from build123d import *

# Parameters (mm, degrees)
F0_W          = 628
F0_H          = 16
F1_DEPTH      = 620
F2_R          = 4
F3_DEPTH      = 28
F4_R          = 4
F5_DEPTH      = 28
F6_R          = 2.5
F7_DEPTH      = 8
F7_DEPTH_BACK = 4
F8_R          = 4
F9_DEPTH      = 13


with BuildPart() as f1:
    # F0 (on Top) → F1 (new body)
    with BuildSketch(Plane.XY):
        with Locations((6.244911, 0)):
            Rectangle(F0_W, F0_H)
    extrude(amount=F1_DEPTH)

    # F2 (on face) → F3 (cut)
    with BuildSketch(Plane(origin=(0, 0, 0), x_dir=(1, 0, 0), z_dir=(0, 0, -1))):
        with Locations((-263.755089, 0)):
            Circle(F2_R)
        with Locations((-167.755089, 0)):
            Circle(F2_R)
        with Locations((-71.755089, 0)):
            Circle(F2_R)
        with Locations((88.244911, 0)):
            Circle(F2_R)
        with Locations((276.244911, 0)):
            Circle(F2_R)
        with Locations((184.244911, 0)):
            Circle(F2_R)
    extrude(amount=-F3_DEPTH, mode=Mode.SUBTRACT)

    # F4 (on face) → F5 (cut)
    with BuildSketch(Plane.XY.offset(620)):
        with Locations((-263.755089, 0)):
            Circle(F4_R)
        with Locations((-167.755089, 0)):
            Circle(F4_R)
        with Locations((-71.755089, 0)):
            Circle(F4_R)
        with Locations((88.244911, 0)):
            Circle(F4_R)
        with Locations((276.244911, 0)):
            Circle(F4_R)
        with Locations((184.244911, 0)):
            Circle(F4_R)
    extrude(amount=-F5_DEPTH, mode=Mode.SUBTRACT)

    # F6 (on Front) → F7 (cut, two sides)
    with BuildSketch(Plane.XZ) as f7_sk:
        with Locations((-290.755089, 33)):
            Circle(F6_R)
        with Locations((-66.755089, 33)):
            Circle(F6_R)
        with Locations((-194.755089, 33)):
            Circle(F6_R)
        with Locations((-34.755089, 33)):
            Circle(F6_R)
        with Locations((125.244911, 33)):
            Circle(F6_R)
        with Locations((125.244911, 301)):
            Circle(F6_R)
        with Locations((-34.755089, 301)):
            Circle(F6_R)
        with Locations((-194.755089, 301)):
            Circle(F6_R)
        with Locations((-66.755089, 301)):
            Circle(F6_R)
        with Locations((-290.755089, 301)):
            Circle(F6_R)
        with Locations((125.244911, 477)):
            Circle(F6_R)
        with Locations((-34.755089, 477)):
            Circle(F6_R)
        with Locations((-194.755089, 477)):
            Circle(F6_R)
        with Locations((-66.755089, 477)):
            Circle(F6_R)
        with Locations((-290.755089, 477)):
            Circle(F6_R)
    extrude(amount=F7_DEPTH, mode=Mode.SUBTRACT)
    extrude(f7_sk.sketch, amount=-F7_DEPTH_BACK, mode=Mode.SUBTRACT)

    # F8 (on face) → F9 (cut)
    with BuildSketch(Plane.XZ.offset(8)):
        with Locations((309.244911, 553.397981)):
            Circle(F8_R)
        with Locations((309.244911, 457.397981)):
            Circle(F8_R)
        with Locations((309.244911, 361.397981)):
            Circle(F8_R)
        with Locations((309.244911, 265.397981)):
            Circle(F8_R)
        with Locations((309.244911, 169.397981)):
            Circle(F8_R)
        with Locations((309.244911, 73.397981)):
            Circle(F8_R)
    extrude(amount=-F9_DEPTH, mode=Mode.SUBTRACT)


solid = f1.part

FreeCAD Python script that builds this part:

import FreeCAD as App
import Part
import Sketcher

V = App.Vector


def add_polygon(sketch, points):
    """Adds a closed chain of lines whose ends are joined by coincident constraints."""
    first, n = sketch.GeometryCount, len(points)
    for a, b in zip(points, points[1:] + points[:1]):
        sketch.addGeometry(Part.LineSegment(App.Vector(*a, 0), App.Vector(*b, 0)), False)
    for i in range(n):
        sketch.addConstraint(Sketcher.Constraint("Coincident", first + i, 2, first + (i + 1) % n, 1))

doc = App.newDocument("Part")
params = doc.addObject("Spreadsheet::Sheet", "Params")
for row, (alias, value) in enumerate([
    ("sketch1_width", "628 mm"),
    ("sketch1_height", "16 mm"),
    ("pad1_length", "620 mm"),
    ("sketch2_diameter", "8 mm"),
    ("pocket1_length", "28 mm"),
    ("sketch3_diameter", "8 mm"),
    ("pocket2_length", "28 mm"),
    ("sketch4_diameter", "5 mm"),
    ("pocket3_length", "8 mm"),
    ("pocket3_length2", "4 mm"),
    ("sketch5_diameter", "8 mm"),
    ("pocket4_length", "13 mm"),
], start=1):
    params.set(f"A{row}", alias)
    params.set(f"B{row}", "=" + value)
    params.setAlias(f"B{row}", alias)

body = doc.addObject("PartDesign::Body", "Body")

# Sketch on XY plane
sketch1 = body.newObject("Sketcher::SketchObject", "Sketch")
sketch1.AttachmentSupport = (doc.getObject("XY_Plane"), [""])
sketch1.MapMode = "FlatFace"
add_polygon(sketch1, [(-308, 8), (-308, -8), (320, -8), (320, 8)])  # lines 0-3
sketch1.addConstraint([
    Sketcher.Constraint("Vertical", 0),
    Sketcher.Constraint("Horizontal", 1),
    Sketcher.Constraint("Vertical", 2),
    Sketcher.Constraint("Horizontal", 3),
    Sketcher.Constraint("DistanceX", 1, 1, 1, 2, 628.0),
    Sketcher.Constraint("DistanceY", 0, 2, 0, 1, 16.0),
    Sketcher.Constraint("DistanceY", 0, 2, -1, 1, 8.0),
    Sketcher.Constraint("DistanceX", 0, 2, -1, 1, 307.755089),
])
sketch1.setExpression("Constraints[8]", "Params.sketch1_width")
sketch1.setExpression("Constraints[9]", "Params.sketch1_height")
pad1 = body.newObject("PartDesign::Pad", "Pad")
pad1.Profile = sketch1
pad1.setExpression("Length", "Params.pad1_length")

# Sketch on XY plane
sketch2 = body.newObject("Sketcher::SketchObject", "Sketch001")
sketch2.AttachmentSupport = (doc.getObject("XY_Plane"), [""])
sketch2.MapMode = "FlatFace"
sketch2.addGeometry([
    Part.Circle(V(-263.8, 0, 0), V(0, 0, 1), 4),  # 0
    Part.Circle(V(-167.8, 0, 0), V(0, 0, 1), 4),  # 1
    Part.Circle(V(-71.8, 0, 0), V(0, 0, 1), 4),  # 2
    Part.Circle(V(88.2, 0, 0), V(0, 0, 1), 4),  # 3
    Part.Circle(V(276.2, 0, 0), V(0, 0, 1), 4),  # 4
    Part.Circle(V(184.2, 0, 0), V(0, 0, 1), 4),  # 5
], False)
sketch2.addConstraint([
    Sketcher.Constraint("Equal", 0, 1),
    Sketcher.Constraint("Equal", 1, 2),
    Sketcher.Constraint("Equal", 2, 3),
    Sketcher.Constraint("Equal", 3, 4),
    Sketcher.Constraint("Equal", 4, 5),
    Sketcher.Constraint("PointOnObject", 0, 3, -1),
    Sketcher.Constraint("PointOnObject", 1, 3, -1),
    Sketcher.Constraint("PointOnObject", 2, 3, -1),
    Sketcher.Constraint("PointOnObject", 3, 3, -1),
    Sketcher.Constraint("PointOnObject", 4, 3, -1),
    Sketcher.Constraint("PointOnObject", 5, 3, -1),
    Sketcher.Constraint("Diameter", 0, 8.0),
    Sketcher.Constraint("DistanceX", 0, 3, 1, 3, 96.0),
    Sketcher.Constraint("DistanceX", 1, 3, 2, 3, 96.0),
    Sketcher.Constraint("DistanceX", 2, 3, 3, 3, 160.0),
    Sketcher.Constraint("DistanceX", 3, 3, 4, 3, 188.0),
    Sketcher.Constraint("DistanceX", 5, 3, 4, 3, 92.0),
    Sketcher.Constraint("DistanceX", 0, 3, -1, 1, 263.755089),
])
sketch2.setExpression("Constraints[11]", "Params.sketch2_diameter")
pocket1 = body.newObject("PartDesign::Pocket", "Pocket")
pocket1.Profile = sketch2
pocket1.setExpression("Length", "Params.pocket1_length")
pocket1.Reversed = True

# Sketch on XY plane
sketch3 = body.newObject("Sketcher::SketchObject", "Sketch002")
sketch3.AttachmentSupport = (doc.getObject("XY_Plane"), [""])
sketch3.MapMode = "FlatFace"
sketch3.AttachmentOffset = App.Placement(V(0, 0, 620), App.Rotation())
sketch3.addGeometry([
    Part.Circle(V(-263.8, 0, 0), V(0, 0, 1), 4),  # 0
    Part.Circle(V(-167.8, 0, 0), V(0, 0, 1), 4),  # 1
    Part.Circle(V(-71.8, 0, 0), V(0, 0, 1), 4),  # 2
    Part.Circle(V(88.2, 0, 0), V(0, 0, 1), 4),  # 3
    Part.Circle(V(276.2, 0, 0), V(0, 0, 1), 4),  # 4
    Part.Circle(V(184.2, 0, 0), V(0, 0, 1), 4),  # 5
], False)
sketch3.addConstraint([
    Sketcher.Constraint("Equal", 0, 1),
    Sketcher.Constraint("Equal", 1, 2),
    Sketcher.Constraint("Equal", 2, 3),
    Sketcher.Constraint("Equal", 3, 4),
    Sketcher.Constraint("Equal", 4, 5),
    Sketcher.Constraint("PointOnObject", 0, 3, -1),
    Sketcher.Constraint("PointOnObject", 1, 3, -1),
    Sketcher.Constraint("PointOnObject", 2, 3, -1),
    Sketcher.Constraint("PointOnObject", 3, 3, -1),
    Sketcher.Constraint("PointOnObject", 4, 3, -1),
    Sketcher.Constraint("PointOnObject", 5, 3, -1),
    Sketcher.Constraint("Diameter", 0, 8.0),
    Sketcher.Constraint("DistanceX", 0, 3, 1, 3, 96.0),
    Sketcher.Constraint("DistanceX", 1, 3, 2, 3, 96.0),
    Sketcher.Constraint("DistanceX", 2, 3, 3, 3, 160.0),
    Sketcher.Constraint("DistanceX", 3, 3, 4, 3, 188.0),
    Sketcher.Constraint("DistanceX", 5, 3, 4, 3, 92.0),
    Sketcher.Constraint("DistanceX", 0, 3, -1, 1, 263.755089),
])
sketch3.setExpression("Constraints[11]", "Params.sketch3_diameter")
pocket2 = body.newObject("PartDesign::Pocket", "Pocket001")
pocket2.Profile = sketch3
pocket2.setExpression("Length", "Params.pocket2_length")

# Sketch on XZ plane
sketch4 = body.newObject("Sketcher::SketchObject", "Sketch003")
sketch4.AttachmentSupport = (doc.getObject("XZ_Plane"), [""])
sketch4.MapMode = "FlatFace"
sketch4.addGeometry([
    Part.Circle(V(-290.8, 33, 0), V(0, 0, 1), 2.5),  # 0
    Part.Circle(V(-66.8, 33, 0), V(0, 0, 1), 2.5),  # 1
    Part.Circle(V(-194.8, 33, 0), V(0, 0, 1), 2.5),  # 2
    Part.Circle(V(-34.8, 33, 0), V(0, 0, 1), 2.5),  # 3
    Part.Circle(V(125.2, 33, 0), V(0, 0, 1), 2.5),  # 4
    Part.Circle(V(125.2, 301, 0), V(0, 0, 1), 2.5),  # 5
    Part.Circle(V(-34.8, 301, 0), V(0, 0, 1), 2.5),  # 6
    Part.Circle(V(-194.8, 301, 0), V(0, 0, 1), 2.5),  # 7
    Part.Circle(V(-66.8, 301, 0), V(0, 0, 1), 2.5),  # 8
    Part.Circle(V(-290.8, 301, 0), V(0, 0, 1), 2.5),  # 9
    Part.Circle(V(125.2, 477, 0), V(0, 0, 1), 2.5),  # 10
    Part.Circle(V(-34.8, 477, 0), V(0, 0, 1), 2.5),  # 11
    Part.Circle(V(-194.8, 477, 0), V(0, 0, 1), 2.5),  # 12
    Part.Circle(V(-66.8, 477, 0), V(0, 0, 1), 2.5),  # 13
    Part.Circle(V(-290.8, 477, 0), V(0, 0, 1), 2.5),  # 14
], False)
sketch4.addConstraint([
    Sketcher.Constraint("Equal", 0, 1),
    Sketcher.Constraint("Equal", 1, 2),
    Sketcher.Constraint("Equal", 2, 3),
    Sketcher.Constraint("Equal", 3, 4),
    Sketcher.Constraint("Equal", 4, 5),
    Sketcher.Constraint("Equal", 5, 6),
    Sketcher.Constraint("Equal", 6, 7),
    Sketcher.Constraint("Equal", 7, 8),
    Sketcher.Constraint("Equal", 8, 9),
    Sketcher.Constraint("Equal", 9, 10),
    Sketcher.Constraint("Equal", 10, 11),
    Sketcher.Constraint("Equal", 11, 12),
    Sketcher.Constraint("Equal", 12, 13),
    Sketcher.Constraint("Equal", 13, 14),
    Sketcher.Constraint("Horizontal", 0, 3, 1, 3),
    Sketcher.Constraint("Horizontal", 1, 3, 2, 3),
    Sketcher.Constraint("Horizontal", 2, 3, 3, 3),
    Sketcher.Constraint("Horizontal", 3, 3, 4, 3),
    Sketcher.Constraint("Horizontal", 5, 3, 6, 3),
    Sketcher.Constraint("Horizontal", 6, 3, 7, 3),
    Sketcher.Constraint("Horizontal", 7, 3, 8, 3),
    Sketcher.Constraint("Horizontal", 8, 3, 9, 3),
    Sketcher.Constraint("Horizontal", 10, 3, 11, 3),
    Sketcher.Constraint("Horizontal", 11, 3, 12, 3),
    Sketcher.Constraint("Horizontal", 12, 3, 13, 3),
    Sketcher.Constraint("Horizontal", 13, 3, 14, 3),
    Sketcher.Constraint("Vertical", 4, 3, 5, 3),
    Sketcher.Constraint("Vertical", 3, 3, 6, 3),
    Sketcher.Constraint("Vertical", 2, 3, 7, 3),
    Sketcher.Constraint("Vertical", 1, 3, 8, 3),
    Sketcher.Constraint("Vertical", 0, 3, 9, 3),
    Sketcher.Constraint("Vertical", 5, 3, 10, 3),
    Sketcher.Constraint("Vertical", 6, 3, 11, 3),
    Sketcher.Constraint("Vertical", 7, 3, 12, 3),
    Sketcher.Constraint("Vertical", 8, 3, 13, 3),
    Sketcher.Constraint("Vertical", 9, 3, 14, 3),
    Sketcher.Constraint("Diameter", 0, 5.0),
    Sketcher.Constraint("DistanceY", -1, 1, 0, 3, 33.0),
    Sketcher.Constraint("DistanceY", -1, 1, 5, 3, 301.0),
    Sketcher.Constraint("DistanceY", -1, 1, 10, 3, 477.0),
    Sketcher.Constraint("DistanceX", 0, 3, 1, 3, 224.0),
    Sketcher.Constraint("DistanceX", 0, 3, 2, 3, 96.0),
    Sketcher.Constraint("DistanceX", 1, 3, 3, 3, 32.0),
    Sketcher.Constraint("DistanceX", 3, 3, 4, 3, 160.0),
    Sketcher.Constraint("DistanceX", 0, 3, -1, 1, 290.755089),
])
sketch4.setExpression("Constraints[36]", "Params.sketch4_diameter")
pocket3 = body.newObject("PartDesign::Pocket", "Pocket002")
pocket3.Profile = sketch4
pocket3.Type = "TwoLengths"
pocket3.setExpression("Length", "Params.pocket3_length")
pocket3.setExpression("Length2", "Params.pocket3_length2")
pocket3.Reversed = True

# Sketch on XZ plane
sketch5 = body.newObject("Sketcher::SketchObject", "Sketch004")
sketch5.AttachmentSupport = (doc.getObject("XZ_Plane"), [""])
sketch5.MapMode = "FlatFace"
sketch5.AttachmentOffset = App.Placement(V(0, 0, 8), App.Rotation())
sketch5.addGeometry([
    Part.Circle(V(309.2, 553.4, 0), V(0, 0, 1), 4),  # 0
    Part.Circle(V(309.2, 457.4, 0), V(0, 0, 1), 4),  # 1
    Part.Circle(V(309.2, 361.4, 0), V(0, 0, 1), 4),  # 2
    Part.Circle(V(309.2, 265.4, 0), V(0, 0, 1), 4),  # 3
    Part.Circle(V(309.2, 169.4, 0), V(0, 0, 1), 4),  # 4
    Part.Circle(V(309.2, 73.4, 0), V(0, 0, 1), 4),  # 5
], False)
sketch5.addConstraint([
    Sketcher.Constraint("Equal", 0, 1),
    Sketcher.Constraint("Equal", 1, 2),
    Sketcher.Constraint("Equal", 2, 3),
    Sketcher.Constraint("Equal", 3, 4),
    Sketcher.Constraint("Equal", 4, 5),
    Sketcher.Constraint("Vertical", 0, 3, 1, 3),
    Sketcher.Constraint("Vertical", 1, 3, 2, 3),
    Sketcher.Constraint("Vertical", 2, 3, 3, 3),
    Sketcher.Constraint("Vertical", 3, 3, 4, 3),
    Sketcher.Constraint("Vertical", 4, 3, 5, 3),
    Sketcher.Constraint("Diameter", 0, 8.0),
    Sketcher.Constraint("DistanceY", 1, 3, 0, 3, 96.0),
    Sketcher.Constraint("DistanceY", 2, 3, 1, 3, 96.0),
    Sketcher.Constraint("DistanceY", 3, 3, 2, 3, 96.0),
    Sketcher.Constraint("DistanceY", 4, 3, 3, 3, 96.0),
    Sketcher.Constraint("DistanceY", 5, 3, 4, 3, 96.0),
    Sketcher.Constraint("DistanceX", -1, 1, 0, 3, 309.244911),
    Sketcher.Constraint("DistanceY", -1, 1, 0, 3, 553.397981),
])
sketch5.setExpression("Constraints[10]", "Params.sketch5_diameter")
pocket4 = body.newObject("PartDesign::Pocket", "Pocket003")
pocket4.Profile = sketch5
pocket4.setExpression("Length", "Params.pocket4_length")

doc.recompute()
